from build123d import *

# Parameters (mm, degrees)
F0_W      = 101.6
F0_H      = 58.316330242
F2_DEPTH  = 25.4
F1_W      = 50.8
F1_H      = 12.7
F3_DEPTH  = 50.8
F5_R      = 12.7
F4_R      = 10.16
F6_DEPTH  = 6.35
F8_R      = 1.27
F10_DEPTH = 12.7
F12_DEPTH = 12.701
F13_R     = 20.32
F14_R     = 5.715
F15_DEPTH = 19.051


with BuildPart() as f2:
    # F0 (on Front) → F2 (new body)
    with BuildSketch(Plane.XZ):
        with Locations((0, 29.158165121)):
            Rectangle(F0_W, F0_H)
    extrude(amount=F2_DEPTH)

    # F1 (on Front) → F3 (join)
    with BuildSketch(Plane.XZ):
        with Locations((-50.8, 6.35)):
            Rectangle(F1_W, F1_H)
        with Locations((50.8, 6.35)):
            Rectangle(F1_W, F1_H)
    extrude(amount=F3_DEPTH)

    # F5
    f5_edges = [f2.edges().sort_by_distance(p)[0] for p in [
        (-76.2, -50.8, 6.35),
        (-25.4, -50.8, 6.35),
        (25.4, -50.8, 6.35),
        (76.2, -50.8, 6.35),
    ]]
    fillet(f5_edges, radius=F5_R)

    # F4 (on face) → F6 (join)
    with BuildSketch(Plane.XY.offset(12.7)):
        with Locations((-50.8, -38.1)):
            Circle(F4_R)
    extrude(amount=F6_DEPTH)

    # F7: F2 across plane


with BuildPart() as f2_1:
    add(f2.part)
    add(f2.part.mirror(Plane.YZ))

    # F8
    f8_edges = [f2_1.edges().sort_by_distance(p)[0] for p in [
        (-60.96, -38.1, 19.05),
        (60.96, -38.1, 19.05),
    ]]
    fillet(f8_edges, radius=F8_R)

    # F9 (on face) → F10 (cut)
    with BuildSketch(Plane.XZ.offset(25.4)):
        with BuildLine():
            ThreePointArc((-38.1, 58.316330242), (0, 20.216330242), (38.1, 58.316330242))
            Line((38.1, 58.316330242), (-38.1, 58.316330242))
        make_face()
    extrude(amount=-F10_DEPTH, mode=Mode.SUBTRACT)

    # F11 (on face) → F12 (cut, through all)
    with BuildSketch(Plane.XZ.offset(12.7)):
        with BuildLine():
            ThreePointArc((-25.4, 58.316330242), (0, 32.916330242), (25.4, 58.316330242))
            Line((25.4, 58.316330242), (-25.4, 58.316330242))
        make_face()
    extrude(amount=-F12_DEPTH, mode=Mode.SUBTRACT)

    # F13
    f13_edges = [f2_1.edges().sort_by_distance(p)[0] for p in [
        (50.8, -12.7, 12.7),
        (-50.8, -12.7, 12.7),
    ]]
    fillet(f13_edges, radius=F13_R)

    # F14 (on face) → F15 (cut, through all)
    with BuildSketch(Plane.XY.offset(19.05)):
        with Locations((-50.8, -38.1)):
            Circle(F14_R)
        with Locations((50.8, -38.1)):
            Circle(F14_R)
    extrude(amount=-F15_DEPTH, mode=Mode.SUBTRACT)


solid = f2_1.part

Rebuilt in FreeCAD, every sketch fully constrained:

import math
import FreeCAD as App
import Part
import Sketcher
from FreeCAD import Vector
Q = App.Units.Quantity


def edges_at(feature, points):
    """Names of the edges that pass closest to the given points."""
    edges = feature.Shape.Edges
    near = lambda p: min(range(len(edges)), key=lambda i: edges[i].distToShape(Part.Vertex(*p))[0])
    return sorted({f"Edge{near(p) + 1}" for p in points})


def add_polygon(sketch, points):
    """Adds a closed chain of lines whose ends are joined by coincident constraints."""
    first, n = sketch.GeometryCount, len(points)
    for a, b in zip(points, points[1:] + points[:1]):
        sketch.addGeometry(Part.LineSegment(App.Vector(*a, 0), App.Vector(*b, 0)), False)
    for i in range(n):
        sketch.addConstraint(Sketcher.Constraint("Coincident", first + i, 2, first + (i + 1) % n, 1))

doc = App.newDocument("Part")
body = doc.addObject("PartDesign::Body", "Body")

sketch1 = body.newObject("Sketcher::SketchObject", "Sketch")
sketch1.AttachmentSupport = (doc.getObject("XZ_Plane"), [""])
sketch1.MapMode = "FlatFace"
add_polygon(sketch1, [(-51, 58), (-51, 0), (51, 0), (51, 58)])
sketch1.addConstraint([
    Sketcher.Constraint("Vertical", 0),
    Sketcher.Constraint("Horizontal", 1),
    Sketcher.Constraint("Vertical", 2),
    Sketcher.Constraint("Horizontal", 3),
    Sketcher.Constraint("Symmetric", 0, 2, 1, 2, -1, 1),
    Sketcher.Constraint("DistanceX", 1, 1, 1, 2, Q("4 in")),
    Sketcher.Constraint("DistanceY", 0, 2, 0, 1, Q("58.31633 mm")),
])
pad1 = body.newObject("PartDesign::Pad", "Pad")
pad1.Profile = sketch1
pad1.Length = Q("1 in")

sketch2 = body.newObject("Sketcher::SketchObject", "Sketch001")
sketch2.AttachmentSupport = (doc.getObject("XZ_Plane"), [""])
sketch2.MapMode = "FlatFace"
add_polygon(sketch2, [(-76, 13), (-76, 0), (-25, 0), (-25, 13)])
add_polygon(sketch2, [(25, 13), (25, 0), (76, 0), (76, 13)])
sketch2.addConstraint([
    Sketcher.Constraint("Vertical", 0),
    Sketcher.Constraint("Horizontal", 1),
    Sketcher.Constraint("Vertical", 2),
    Sketcher.Constraint("Horizontal", 3),
    Sketcher.Constraint("Vertical", 4),
    Sketcher.Constraint("Horizontal", 5),
    Sketcher.Constraint("Vertical", 6),
    Sketcher.Constraint("Horizontal", 7),
    Sketcher.Constraint("Symmetric", 1, 2, 4, 2, -1, 1),
    Sketcher.Constraint("Symmetric", 0, 2, 5, 2, -2),
    Sketcher.Constraint("Horizontal", 3, 2, 6, 2),
    Sketcher.Constraint("DistanceX", 1, 1, 1, 2, Q("2 in")),
    Sketcher.Constraint("DistanceY", 0, 2, 0, 1, Q("0.5 in")),
    Sketcher.Constraint("DistanceX", 0, 2, -1, 1, Q("3 in")),
])
pad2 = body.newObject("PartDesign::Pad", "Pad001")
pad2.Profile = sketch2
pad2.Length = Q("2 in")
doc.recompute()

fillet = body.newObject("PartDesign::Fillet", "Fillet")
fillet.Base = (pad2, edges_at(pad2, [
    (-76.2, -50.8, 6.35),
    (-25.4, -50.8, 6.35),
    (25.4, -50.8, 6.35),
    (76.2, -50.8, 6.35),
]))
fillet.Radius = Q("0.5 in")

sketch3 = body.newObject("Sketcher::SketchObject", "Sketch002")
sketch3.AttachmentSupport = (doc.getObject("XY_Plane"), [""])
sketch3.MapMode = "FlatFace"
sketch3.AttachmentOffset = App.Placement(Vector(0, 0, 0.5 * 25.4), App.Rotation())
sketch3.addGeometry(Part.Circle(Vector(-51, -38, 0), Vector(0, 0, 1), 10), False)
sketch3.addConstraint([
    Sketcher.Constraint("Diameter", 0, Q("0.8 in")),
    Sketcher.Constraint("DistanceX", 0, 3, -1, 1, Q("2 in")),
    Sketcher.Constraint("DistanceY", 0, 3, -1, 1, Q("1.5 in")),
])
pad3 = body.newObject("PartDesign::Pad", "Pad002")
pad3.Profile = sketch3
pad3.Length = Q("0.25 in")
body2 = doc.addObject("PartDesign::Body", "Body001")
doc.recompute()

body2.BaseFeature = body
doc.recompute()

mirroring = doc.addObject("Part::Mirroring", "Mirroring")
mirroring.Source = body
mirroring.Base = Vector(0, 0, 0)
mirroring.Normal = Vector(1, 0, 0)
body3 = doc.addObject("PartDesign::Body", "Body002")
body3.BaseFeature = mirroring
boolean = body2.newObject("PartDesign::Boolean", "Boolean")
boolean.Type = "Fuse"
boolean.addObjects([body3])
doc.recompute()

fillet2 = body2.newObject("PartDesign::Fillet", "Fillet001")
fillet2.Base = (boolean, edges_at(boolean, [(-60.96, -38.1, 19.05), (60.96, -38.1, 19.05)]))
fillet2.Radius = Q("0.05 in")

sketch4 = body2.newObject("Sketcher::SketchObject", "Sketch003")
sketch4.AttachmentSupport = (doc.getObject("XZ_Plane001"), [""])
sketch4.MapMode = "FlatFace"
sketch4.AttachmentOffset = App.Placement(Vector(0, 0, 1 * 25.4), App.Rotation())
sketch4.addGeometry([
    Part.ArcOfCircle(Part.Circle(Vector(0, 58, 0), Vector(0, 0, 1), 38), math.radians(180), math.radians(360)),
    Part.LineSegment(Vector(38, 58, 0), Vector(-38, 58, 0)),
], False)
sketch4.addConstraint([
    Sketcher.Constraint("Coincident", 0, 1, 1, 2),
    Sketcher.Constraint("Coincident", 1, 1, 0, 2),
    Sketcher.Constraint("Horizontal", 1),
    Sketcher.Constraint("PointOnObject", 0, 3, -2),
    Sketcher.Constraint("Radius", 0, Q("1.5 in")),
    Sketcher.Constraint("DistanceY", -1, 1, 0, 3, Q("58.31633 mm")),
    Sketcher.Constraint("DistanceY", -1, 1, 0, 1, Q("58.31633 mm")),
])
pocket1 = body2.newObject("PartDesign::Pocket", "Pocket")
pocket1.Profile = sketch4
pocket1.Length = Q("0.5 in")

sketch5 = body2.newObject("Sketcher::SketchObject", "Sketch004")
sketch5.AttachmentSupport = (doc.getObject("XZ_Plane001"), [""])
sketch5.MapMode = "FlatFace"
sketch5.AttachmentOffset = App.Placement(Vector(0, 0, 0.5 * 25.4), App.Rotation())
sketch5.addGeometry([
    Part.ArcOfCircle(Part.Circle(Vector(0, 58, 0), Vector(0, 0, 1), 25), math.radians(180), math.radians(360)),
    Part.LineSegment(Vector(25, 58, 0), Vector(-25, 58, 0)),
], False)
sketch5.addConstraint([
    Sketcher.Constraint("Coincident", 0, 1, 1, 2),
    Sketcher.Constraint("Coincident", 1, 1, 0, 2),
    Sketcher.Constraint("Horizontal", 1),
    Sketcher.Constraint("PointOnObject", 0, 3, -2),
    Sketcher.Constraint("Radius", 0, Q("1 in")),
    Sketcher.Constraint("DistanceY", -1, 1, 0, 3, Q("58.31633 mm")),
    Sketcher.Constraint("DistanceY", -1, 1, 0, 1, Q("58.31633 mm")),
])
pocket2 = body2.newObject("PartDesign::Pocket", "Pocket001")
pocket2.Profile = sketch5
pocket2.Type = "ThroughAll"
doc.recompute()

fillet3 = body2.newObject("PartDesign::Fillet", "Fillet002")
fillet3.Base = (pocket2, edges_at(pocket2, [(50.8, -12.7, 12.7), (-50.8, -12.7, 12.7)]))
fillet3.Radius = Q("0.8 in")

sketch6 = body2.newObject("Sketcher::SketchObject", "Sketch005")
sketch6.AttachmentSupport = (doc.getObject("XY_Plane001"), [""])
sketch6.MapMode = "FlatFace"
sketch6.AttachmentOffset = App.Placement(Vector(0, 0, 0.75 * 25.4), App.Rotation())
sketch6.addGeometry([
    Part.Circle(Vector(-51, -38, 0), Vector(0, 0, 1), 6),
    Part.Circle(Vector(51, -38, 0), Vector(0, 0, 1), 6),
], False)
sketch6.addConstraint([
    Sketcher.Constraint("Equal", 0, 1),
    Sketcher.Constraint("Symmetric", 0, 3, 1, 3, -2),
    Sketcher.Constraint("Diameter", 0, Q("0.45 in")),
    Sketcher.Constraint("DistanceX", 0, 3, -1, 1, Q("2 in")),
    Sketcher.Constraint("DistanceY", 0, 3, -1, 1, Q("1.5 in")),
])
pocket3 = body2.newObject("PartDesign::Pocket", "Pocket002")
pocket3.Profile = sketch6
pocket3.Type = "ThroughAll"
mirroring.Visibility = False

doc.recompute()
